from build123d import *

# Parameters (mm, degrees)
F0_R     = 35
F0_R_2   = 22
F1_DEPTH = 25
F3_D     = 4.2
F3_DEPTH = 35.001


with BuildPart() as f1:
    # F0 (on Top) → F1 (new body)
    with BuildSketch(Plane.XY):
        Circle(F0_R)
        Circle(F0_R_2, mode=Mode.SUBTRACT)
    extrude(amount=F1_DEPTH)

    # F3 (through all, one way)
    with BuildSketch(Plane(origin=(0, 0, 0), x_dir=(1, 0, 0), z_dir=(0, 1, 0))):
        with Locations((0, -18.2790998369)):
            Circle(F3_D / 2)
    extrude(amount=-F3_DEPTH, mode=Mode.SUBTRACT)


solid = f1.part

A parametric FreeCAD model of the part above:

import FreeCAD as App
import Part
import Sketcher

V = App.Vector
Q = App.Units.Quantity

doc = App.newDocument("Part")
params = doc.addObject("Spreadsheet::Sheet", "Params")
for row, (alias, value) in enumerate([
    ("sketch1_diameter", "70 mm"),
    ("sketch1_diameter2", "44 mm"),
    ("pad1_length", "25 mm"),
    ("sketch2_diameter", "4.2 mm"),
], start=1):
    params.set(f"A{row}", alias)
    params.set(f"B{row}", "=" + value)
    params.setAlias(f"B{row}", alias)

body = doc.addObject("PartDesign::Body", "Body")

# Sketch on XY plane
sketch1 = doc.addObject("Sketcher::SketchObject", "Sketch")
body.addObject(sketch1)
sketch1.AttachmentSupport = (doc.XY_Plane, [""])
sketch1.MapMode = "FlatFace"
sketch1.addGeometry(Part.Circle(V(0, 0, 0), V(0, 0, 1), 35), False)
sketch1.addGeometry(Part.Circle(V(0, 0, 0), V(0, 0, 1), 22), False)
sketch1.addConstraint(Sketcher.Constraint("Coincident", 0, 3, -1, 1))
sketch1.addConstraint(Sketcher.Constraint("Coincident", 1, 3, -1, 1))
sketch1.addConstraint(Sketcher.Constraint("Diameter", 0, Q("70 mm")))
sketch1.addConstraint(Sketcher.Constraint("Diameter", 1, Q("44 mm")))
sketch1.setExpression("Constraints[2]", "Params.sketch1_diameter")
sketch1.setExpression("Constraints[3]", "Params.sketch1_diameter2")
pad1 = doc.addObject("PartDesign::Pad", "Pad")
body.addObject(pad1)
pad1.Profile = sketch1
pad1.setExpression("Length", "Params.pad1_length")

# Sketch on XZ plane
sketch2 = doc.addObject("Sketcher::SketchObject", "Sketch001")
body.addObject(sketch2)
sketch2.AttachmentSupport = (doc.XZ_Plane, [""])
sketch2.MapMode = "FlatFace"
sketch2.addGeometry(Part.Circle(V(0, 18.3, 0), V(0, 0, 1), 2.1), False)
sketch2.addConstraint(Sketcher.Constraint("PointOnObject", 0, 3, -2))
sketch2.addConstraint(Sketcher.Constraint("Diameter", 0, Q("4.2 mm")))
sketch2.addConstraint(Sketcher.Constraint("DistanceY", -1, 1, 0, 3, Q("18.2791 mm")))
sketch2.setExpression("Constraints[1]", "Params.sketch2_diameter")
pocket1 = doc.addObject("PartDesign::Pocket", "Pocket")
body.addObject(pocket1)
pocket1.Profile = sketch2
pocket1.Type = "ThroughAll"
pocket1.Reversed = True

doc.recompute()
